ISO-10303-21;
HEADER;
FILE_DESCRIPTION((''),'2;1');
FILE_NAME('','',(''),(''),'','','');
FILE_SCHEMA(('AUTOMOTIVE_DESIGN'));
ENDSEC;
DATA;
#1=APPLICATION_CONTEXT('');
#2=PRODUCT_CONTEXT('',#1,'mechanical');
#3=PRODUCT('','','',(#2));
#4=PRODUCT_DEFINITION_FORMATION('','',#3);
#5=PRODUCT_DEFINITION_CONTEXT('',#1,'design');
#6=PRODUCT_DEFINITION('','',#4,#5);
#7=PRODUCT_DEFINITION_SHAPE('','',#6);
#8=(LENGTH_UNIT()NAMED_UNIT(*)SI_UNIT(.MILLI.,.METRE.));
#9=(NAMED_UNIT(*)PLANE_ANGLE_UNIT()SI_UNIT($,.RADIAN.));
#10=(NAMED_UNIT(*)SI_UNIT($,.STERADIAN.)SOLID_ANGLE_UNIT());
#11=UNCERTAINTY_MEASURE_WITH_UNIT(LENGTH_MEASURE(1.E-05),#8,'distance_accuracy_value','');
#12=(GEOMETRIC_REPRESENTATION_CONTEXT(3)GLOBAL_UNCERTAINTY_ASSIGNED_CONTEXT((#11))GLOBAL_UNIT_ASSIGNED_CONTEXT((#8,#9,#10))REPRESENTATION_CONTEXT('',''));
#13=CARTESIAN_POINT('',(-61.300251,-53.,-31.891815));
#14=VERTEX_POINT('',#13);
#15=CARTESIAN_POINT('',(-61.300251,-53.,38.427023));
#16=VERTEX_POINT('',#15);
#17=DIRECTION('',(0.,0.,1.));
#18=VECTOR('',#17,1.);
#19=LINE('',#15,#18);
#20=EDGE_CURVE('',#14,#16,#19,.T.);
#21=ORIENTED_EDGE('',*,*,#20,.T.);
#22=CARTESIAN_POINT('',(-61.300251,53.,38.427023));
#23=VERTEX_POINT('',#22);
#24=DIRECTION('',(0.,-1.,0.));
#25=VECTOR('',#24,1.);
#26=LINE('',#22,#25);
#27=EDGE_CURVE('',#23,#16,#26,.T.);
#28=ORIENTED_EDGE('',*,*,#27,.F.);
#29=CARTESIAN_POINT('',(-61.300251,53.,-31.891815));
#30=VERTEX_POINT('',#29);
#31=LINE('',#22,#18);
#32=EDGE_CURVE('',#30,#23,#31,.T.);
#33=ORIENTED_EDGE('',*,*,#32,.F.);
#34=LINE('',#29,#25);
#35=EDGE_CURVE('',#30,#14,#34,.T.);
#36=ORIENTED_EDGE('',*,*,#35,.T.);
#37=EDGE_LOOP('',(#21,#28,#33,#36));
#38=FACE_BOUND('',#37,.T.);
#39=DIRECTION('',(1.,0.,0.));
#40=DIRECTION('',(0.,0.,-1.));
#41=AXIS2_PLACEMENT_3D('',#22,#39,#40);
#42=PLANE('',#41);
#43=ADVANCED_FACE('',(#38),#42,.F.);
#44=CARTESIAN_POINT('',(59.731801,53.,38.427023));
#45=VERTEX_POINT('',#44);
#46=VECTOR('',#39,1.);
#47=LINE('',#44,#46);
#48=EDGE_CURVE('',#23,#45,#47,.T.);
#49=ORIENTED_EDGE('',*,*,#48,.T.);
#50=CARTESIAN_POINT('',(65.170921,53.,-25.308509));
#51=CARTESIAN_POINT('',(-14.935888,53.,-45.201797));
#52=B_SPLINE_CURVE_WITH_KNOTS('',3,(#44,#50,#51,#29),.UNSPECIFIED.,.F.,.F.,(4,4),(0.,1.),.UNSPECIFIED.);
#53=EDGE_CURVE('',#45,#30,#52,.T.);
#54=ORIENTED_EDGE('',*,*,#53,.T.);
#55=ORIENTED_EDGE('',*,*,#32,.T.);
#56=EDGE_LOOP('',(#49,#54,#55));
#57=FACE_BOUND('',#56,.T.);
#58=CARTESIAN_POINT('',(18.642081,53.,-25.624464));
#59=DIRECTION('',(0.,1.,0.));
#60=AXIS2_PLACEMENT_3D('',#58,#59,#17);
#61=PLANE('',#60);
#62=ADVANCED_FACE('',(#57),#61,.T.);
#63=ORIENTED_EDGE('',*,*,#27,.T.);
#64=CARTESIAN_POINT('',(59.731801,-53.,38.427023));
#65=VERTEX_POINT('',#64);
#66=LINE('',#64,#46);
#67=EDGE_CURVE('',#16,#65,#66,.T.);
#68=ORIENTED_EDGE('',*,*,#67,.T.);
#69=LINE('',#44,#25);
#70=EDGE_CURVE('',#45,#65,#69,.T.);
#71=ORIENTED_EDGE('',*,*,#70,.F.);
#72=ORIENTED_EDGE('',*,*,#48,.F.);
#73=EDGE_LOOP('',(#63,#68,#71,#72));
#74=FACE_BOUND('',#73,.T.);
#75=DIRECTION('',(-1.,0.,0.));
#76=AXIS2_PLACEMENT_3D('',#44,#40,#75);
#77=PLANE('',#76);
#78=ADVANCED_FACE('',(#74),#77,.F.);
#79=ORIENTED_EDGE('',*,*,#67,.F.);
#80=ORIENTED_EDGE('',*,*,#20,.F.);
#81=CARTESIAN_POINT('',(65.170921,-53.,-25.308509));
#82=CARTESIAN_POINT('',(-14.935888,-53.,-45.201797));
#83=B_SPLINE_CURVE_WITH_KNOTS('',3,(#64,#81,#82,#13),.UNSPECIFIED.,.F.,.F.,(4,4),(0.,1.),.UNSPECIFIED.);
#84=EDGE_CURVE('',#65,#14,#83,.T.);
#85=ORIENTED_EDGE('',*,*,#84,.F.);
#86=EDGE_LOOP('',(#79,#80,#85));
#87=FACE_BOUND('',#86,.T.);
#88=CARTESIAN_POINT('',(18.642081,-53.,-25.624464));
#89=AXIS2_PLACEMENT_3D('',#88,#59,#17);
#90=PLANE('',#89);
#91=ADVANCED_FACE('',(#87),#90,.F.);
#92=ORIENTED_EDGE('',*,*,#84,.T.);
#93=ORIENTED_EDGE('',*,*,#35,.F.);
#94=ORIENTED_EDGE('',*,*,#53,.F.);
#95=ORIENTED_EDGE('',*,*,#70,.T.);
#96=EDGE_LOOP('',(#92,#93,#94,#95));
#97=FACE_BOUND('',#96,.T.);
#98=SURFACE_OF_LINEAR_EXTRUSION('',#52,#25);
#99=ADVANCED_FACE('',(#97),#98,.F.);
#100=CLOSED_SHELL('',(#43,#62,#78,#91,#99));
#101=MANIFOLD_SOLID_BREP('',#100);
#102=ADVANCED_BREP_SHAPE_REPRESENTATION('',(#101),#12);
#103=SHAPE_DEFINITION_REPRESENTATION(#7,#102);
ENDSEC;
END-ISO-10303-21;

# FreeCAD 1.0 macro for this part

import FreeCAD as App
import Part
import Sketcher

doc = App.newDocument("Part")
body = doc.addObject("PartDesign::Body", "Body")

# Sketch on XZ plane
sketch1 = body.newObject("Sketcher::SketchObject", "Sketch")
sketch1.AttachmentSupport = (doc.getObject("XZ_Plane"), [""])
sketch1.MapMode = "FlatFace"
sketch1.addGeometry(Part.LineSegment(App.Vector(-61.300251, 38.427023, 0), App.Vector(59.731801, 38.427023, 0)), False)
sketch1.addGeometry(Part.BSplineCurve([App.Vector(-61.300251, -31.891815, 0), App.Vector(-14.935888, -45.201797, 0), App.Vector(65.170921, -25.308509, 0), App.Vector(59.731801, 38.427023, 0)], [4, 4], [0, 1], False, 3, [1, 1, 1, 1], False), False)
sketch1.addGeometry(Part.LineSegment(App.Vector(-61.300251, -31.891815, 0), App.Vector(-61.300251, 38.427023, 0)), False)
sketch1.addConstraint(Sketcher.Constraint("Block", 1))
sketch1.addConstraint(Sketcher.Constraint("Coincident", 0, 2, 1, 2))
sketch1.addConstraint(Sketcher.Constraint("Coincident", 1, 1, 2, 1))
sketch1.addConstraint(Sketcher.Constraint("Coincident", 2, 2, 0, 1))
sketch1.addConstraint(Sketcher.Constraint("Horizontal", 0))
sketch1.addConstraint(Sketcher.Constraint("Vertical", 2))
pad1 = body.newObject("PartDesign::Pad", "Pad")
pad1.Profile = sketch1
pad1.Length = 106
pad1.Midplane = True

doc.recompute()
